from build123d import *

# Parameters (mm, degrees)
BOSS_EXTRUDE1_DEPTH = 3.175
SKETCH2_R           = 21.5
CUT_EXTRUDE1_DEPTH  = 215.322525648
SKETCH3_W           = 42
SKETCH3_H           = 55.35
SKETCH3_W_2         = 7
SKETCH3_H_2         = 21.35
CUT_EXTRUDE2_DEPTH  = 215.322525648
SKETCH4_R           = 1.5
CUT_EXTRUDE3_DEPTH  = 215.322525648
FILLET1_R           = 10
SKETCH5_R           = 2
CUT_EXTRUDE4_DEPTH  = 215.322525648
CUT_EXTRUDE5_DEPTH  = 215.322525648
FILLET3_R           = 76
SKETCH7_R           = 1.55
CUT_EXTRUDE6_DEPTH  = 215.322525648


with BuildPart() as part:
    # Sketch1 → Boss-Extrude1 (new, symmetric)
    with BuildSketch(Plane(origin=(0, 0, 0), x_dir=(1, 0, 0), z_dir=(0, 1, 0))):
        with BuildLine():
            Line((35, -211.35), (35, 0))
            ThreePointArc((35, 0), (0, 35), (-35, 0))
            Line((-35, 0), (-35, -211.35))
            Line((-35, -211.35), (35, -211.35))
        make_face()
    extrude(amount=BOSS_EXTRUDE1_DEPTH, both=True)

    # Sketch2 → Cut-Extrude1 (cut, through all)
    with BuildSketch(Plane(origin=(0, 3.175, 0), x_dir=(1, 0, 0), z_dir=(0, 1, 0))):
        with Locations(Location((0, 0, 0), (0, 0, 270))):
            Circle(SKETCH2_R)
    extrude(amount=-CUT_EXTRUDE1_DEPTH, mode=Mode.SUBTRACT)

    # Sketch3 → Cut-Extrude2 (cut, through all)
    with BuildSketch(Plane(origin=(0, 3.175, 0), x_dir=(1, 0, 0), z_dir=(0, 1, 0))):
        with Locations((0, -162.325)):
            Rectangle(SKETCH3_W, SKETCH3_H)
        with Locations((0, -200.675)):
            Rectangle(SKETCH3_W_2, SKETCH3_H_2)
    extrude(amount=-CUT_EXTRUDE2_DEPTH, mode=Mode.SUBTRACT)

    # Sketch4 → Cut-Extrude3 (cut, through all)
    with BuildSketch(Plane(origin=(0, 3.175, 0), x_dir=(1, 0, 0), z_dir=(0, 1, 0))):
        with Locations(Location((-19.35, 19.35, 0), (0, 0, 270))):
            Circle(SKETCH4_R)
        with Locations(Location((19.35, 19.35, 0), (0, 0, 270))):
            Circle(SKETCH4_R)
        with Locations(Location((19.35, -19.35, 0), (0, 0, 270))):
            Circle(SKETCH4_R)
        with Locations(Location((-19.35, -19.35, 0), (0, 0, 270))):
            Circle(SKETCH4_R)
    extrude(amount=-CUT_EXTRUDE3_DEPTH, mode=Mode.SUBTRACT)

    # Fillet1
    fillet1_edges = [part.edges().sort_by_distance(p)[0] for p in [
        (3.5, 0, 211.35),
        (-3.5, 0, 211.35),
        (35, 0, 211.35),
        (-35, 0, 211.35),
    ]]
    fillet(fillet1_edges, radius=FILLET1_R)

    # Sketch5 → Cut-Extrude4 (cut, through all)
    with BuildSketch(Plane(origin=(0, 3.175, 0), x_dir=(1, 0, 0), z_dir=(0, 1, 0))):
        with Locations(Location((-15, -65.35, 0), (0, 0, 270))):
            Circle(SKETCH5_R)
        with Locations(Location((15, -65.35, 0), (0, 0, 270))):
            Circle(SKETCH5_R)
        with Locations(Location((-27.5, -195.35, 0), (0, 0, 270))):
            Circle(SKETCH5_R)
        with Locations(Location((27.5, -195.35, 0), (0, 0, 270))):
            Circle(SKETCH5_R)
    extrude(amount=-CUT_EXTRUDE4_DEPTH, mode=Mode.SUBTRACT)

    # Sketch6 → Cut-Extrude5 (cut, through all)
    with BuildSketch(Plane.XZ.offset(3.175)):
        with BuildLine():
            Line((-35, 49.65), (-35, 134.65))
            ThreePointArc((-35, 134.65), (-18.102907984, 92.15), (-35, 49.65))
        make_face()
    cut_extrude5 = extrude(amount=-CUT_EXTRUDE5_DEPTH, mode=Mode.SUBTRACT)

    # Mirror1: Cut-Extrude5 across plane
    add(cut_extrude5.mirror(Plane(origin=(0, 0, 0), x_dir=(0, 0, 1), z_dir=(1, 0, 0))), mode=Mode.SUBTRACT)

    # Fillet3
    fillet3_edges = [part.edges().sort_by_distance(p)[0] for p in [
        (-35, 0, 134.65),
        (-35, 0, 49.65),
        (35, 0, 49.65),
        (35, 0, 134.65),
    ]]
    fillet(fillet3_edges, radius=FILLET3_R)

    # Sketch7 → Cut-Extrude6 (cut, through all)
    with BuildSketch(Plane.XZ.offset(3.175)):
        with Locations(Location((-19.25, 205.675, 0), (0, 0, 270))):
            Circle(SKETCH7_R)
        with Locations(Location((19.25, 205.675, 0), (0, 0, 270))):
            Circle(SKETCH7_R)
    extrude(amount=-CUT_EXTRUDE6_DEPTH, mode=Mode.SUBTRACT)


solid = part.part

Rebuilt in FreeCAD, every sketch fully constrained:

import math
import FreeCAD as App
import Part
import Sketcher


def edges_at(feature, points):
    """Names of the edges that pass closest to the given points."""
    edges = feature.Shape.Edges
    near = lambda p: min(range(len(edges)), key=lambda i: edges[i].distToShape(Part.Vertex(*p))[0])
    return sorted({f"Edge{near(p) + 1}" for p in points})

doc = App.newDocument("Part")
body = doc.addObject("PartDesign::Body", "Body")

# Sketch on XZ plane
sketch1 = body.newObject("Sketcher::SketchObject", "Sketch")
sketch1.AttachmentSupport = (doc.getObject("XZ_Plane"), [""])
sketch1.MapMode = "FlatFace"
sketch1.addGeometry(Part.LineSegment(App.Vector(35, 211, 0), App.Vector(35, 0, 0)), False)
sketch1.addGeometry(Part.ArcOfCircle(Part.Circle(App.Vector(0, 0, 0), App.Vector(0, 0, 1), 35), math.radians(180), math.radians(360)), False)
sketch1.addGeometry(Part.LineSegment(App.Vector(-35, 0, 0), App.Vector(-35, 211, 0)), False)
sketch1.addGeometry(Part.LineSegment(App.Vector(-35, 211, 0), App.Vector(35, 211, 0)), False)
sketch1.addConstraint(Sketcher.Constraint("Tangent", 0, 2, 1, 2))
sketch1.addConstraint(Sketcher.Constraint("Tangent", 1, 1, 2, 1))
sketch1.addConstraint(Sketcher.Constraint("Coincident", 2, 2, 3, 1))
sketch1.addConstraint(Sketcher.Constraint("Coincident", 3, 2, 0, 1))
sketch1.addConstraint(Sketcher.Constraint("Vertical", 0))
sketch1.addConstraint(Sketcher.Constraint("Vertical", 2))
sketch1.addConstraint(Sketcher.Constraint("Horizontal", 3))
sketch1.addConstraint(Sketcher.Constraint("Coincident", 1, 3, -1, 1))
sketch1.addConstraint(Sketcher.Constraint("Radius", 1, 35.0))
sketch1.addConstraint(Sketcher.Constraint("DistanceY", 0, 2, 0, 1, 211.35))
pad1 = body.newObject("PartDesign::Pad", "Pad")
pad1.Profile = sketch1
pad1.Length = 6.35
pad1.Midplane = True

# Sketch on XZ plane
sketch2 = body.newObject("Sketcher::SketchObject", "Sketch001")
sketch2.AttachmentSupport = (doc.getObject("XZ_Plane"), [""])
sketch2.MapMode = "FlatFace"
sketch2.AttachmentOffset = App.Placement(App.Vector(0, 0, -3.175), App.Rotation())
sketch2.addGeometry(Part.Circle(App.Vector(0, 0, 0), App.Vector(0, 0, 1), 22), False)
sketch2.addConstraint(Sketcher.Constraint("Coincident", 0, 3, -1, 1))
sketch2.addConstraint(Sketcher.Constraint("Diameter", 0, 43.0))
pocket1 = body.newObject("PartDesign::Pocket", "Pocket")
pocket1.Profile = sketch2
pocket1.Type = "ThroughAll"
pocket1.Reversed = True

# Sketch on XZ plane
sketch3 = body.newObject("Sketcher::SketchObject", "Sketch002")
sketch3.AttachmentSupport = (doc.getObject("XZ_Plane"), [""])
sketch3.MapMode = "FlatFace"
sketch3.AttachmentOffset = App.Placement(App.Vector(0, 0, -3.175), App.Rotation())
sketch3.addGeometry(Part.LineSegment(App.Vector(-21, 135, 0), App.Vector(-21, 190, 0)), False)
sketch3.addGeometry(Part.LineSegment(App.Vector(-21, 190, 0), App.Vector(-4, 190, 0)), False)
sketch3.addGeometry(Part.LineSegment(App.Vector(-4, 190, 0), App.Vector(-4, 211, 0)), False)
sketch3.addGeometry(Part.LineSegment(App.Vector(-4, 211, 0), App.Vector(4, 211, 0)), False)
sketch3.addGeometry(Part.LineSegment(App.Vector(4, 211, 0), App.Vector(4, 190, 0)), False)
sketch3.addGeometry(Part.LineSegment(App.Vector(4, 190, 0), App.Vector(21, 190, 0)), False)
sketch3.addGeometry(Part.LineSegment(App.Vector(21, 190, 0), App.Vector(21, 135, 0)), False)
sketch3.addGeometry(Part.LineSegment(App.Vector(21, 135, 0), App.Vector(-21, 135, 0)), False)
sketch3.addConstraint(Sketcher.Constraint("Coincident", 0, 2, 1, 1))
sketch3.addConstraint(Sketcher.Constraint("Coincident", 1, 2, 2, 1))
sketch3.addConstraint(Sketcher.Constraint("Coincident", 2, 2, 3, 1))
sketch3.addConstraint(Sketcher.Constraint("Coincident", 3, 2, 4, 1))
sketch3.addConstraint(Sketcher.Constraint("Coincident", 4, 2, 5, 1))
sketch3.addConstraint(Sketcher.Constraint("Coincident", 5, 2, 6, 1))
sketch3.addConstraint(Sketcher.Constraint("Coincident", 6, 2, 7, 1))
sketch3.addConstraint(Sketcher.Constraint("Coincident", 7, 2, 0, 1))
sketch3.addConstraint(Sketcher.Constraint("Vertical", 0))
sketch3.addConstraint(Sketcher.Constraint("Horizontal", 1))
sketch3.addConstraint(Sketcher.Constraint("Vertical", 2))
sketch3.addConstraint(Sketcher.Constraint("Horizontal", 3))
sketch3.addConstraint(Sketcher.Constraint("Vertical", 4))
sketch3.addConstraint(Sketcher.Constraint("Horizontal", 5))
sketch3.addConstraint(Sketcher.Constraint("Vertical", 6))
sketch3.addConstraint(Sketcher.Constraint("Horizontal", 7))
sketch3.addConstraint(Sketcher.Constraint("Symmetric", 1, 2, 4, 2, -2))
sketch3.addConstraint(Sketcher.Constraint("Equal", 1, 5))
sketch3.addConstraint(Sketcher.Constraint("DistanceX", 3, 1, 3, 2, 7.0))
sketch3.addConstraint(Sketcher.Constraint("DistanceX", 7, 2, 7, 1, 42.0))
sketch3.addConstraint(Sketcher.Constraint("DistanceY", -1, 1, 0, 2, 190.0))
sketch3.addConstraint(Sketcher.Constraint("DistanceY", 0, 1, 0, 2, 55.35))
sketch3.addConstraint(Sketcher.Constraint("DistanceY", 2, 1, 2, 2, 21.35))
pocket2 = body.newObject("PartDesign::Pocket", "Pocket001")
pocket2.Profile = sketch3
pocket2.Type = "ThroughAll"
pocket2.Reversed = True

# Sketch on XZ plane
sketch4 = body.newObject("Sketcher::SketchObject", "Sketch003")
sketch4.AttachmentSupport = (doc.getObject("XZ_Plane"), [""])
sketch4.MapMode = "FlatFace"
sketch4.AttachmentOffset = App.Placement(App.Vector(0, 0, -3.175), App.Rotation())
sketch4.addGeometry(Part.Circle(App.Vector(-19.4, -19.4, 0), App.Vector(0, 0, 1), 1.5), False)
sketch4.addGeometry(Part.Circle(App.Vector(19.4, -19.4, 0), App.Vector(0, 0, 1), 1.5), False)
sketch4.addGeometry(Part.Circle(App.Vector(19.4, 19.4, 0), App.Vector(0, 0, 1), 1.5), False)
sketch4.addGeometry(Part.Circle(App.Vector(-19.4, 19.4, 0), App.Vector(0, 0, 1), 1.5), False)
sketch4.addConstraint(Sketcher.Constraint("Equal", 0, 1))
sketch4.addConstraint(Sketcher.Constraint("Equal", 1, 2))
sketch4.addConstraint(Sketcher.Constraint("Equal", 2, 3))
sketch4.addConstraint(Sketcher.Constraint("Symmetric", 0, 3, 2, 3, -1, 1))
sketch4.addConstraint(Sketcher.Constraint("Symmetric", 1, 3, 3, 3, -1, 1))
sketch4.addConstraint(Sketcher.Constraint("Symmetric", 0, 3, 1, 3, -2))
sketch4.addConstraint(Sketcher.Constraint("Diameter", 0, 3.0))
sketch4.addConstraint(Sketcher.Constraint("DistanceX", 0, 3, 1, 3, 38.7))
sketch4.addConstraint(Sketcher.Constraint("DistanceY", 1, 3, 2, 3, 38.7))
pocket3 = body.newObject("PartDesign::Pocket", "Pocket002")
pocket3.Profile = sketch4
pocket3.Type = "ThroughAll"
pocket3.Reversed = True
doc.recompute()

fillet = body.newObject("PartDesign::Fillet", "Fillet")
fillet.Base = (pocket3, edges_at(pocket3, [
    (3.5, 0, 211.35),
    (-3.5, 0, 211.35),
    (35, 0, 211.35),
    (-35, 0, 211.35),
]))
fillet.Radius = 10

# Sketch on XZ plane
sketch5 = body.newObject("Sketcher::SketchObject", "Sketch004")
sketch5.AttachmentSupport = (doc.getObject("XZ_Plane"), [""])
sketch5.MapMode = "FlatFace"
sketch5.AttachmentOffset = App.Placement(App.Vector(0, 0, -3.175), App.Rotation())
sketch5.addGeometry(Part.Circle(App.Vector(-15, 65.3, 0), App.Vector(0, 0, 1), 2), False)
sketch5.addGeometry(Part.Circle(App.Vector(15, 65.3, 0), App.Vector(0, 0, 1), 2), False)
sketch5.addGeometry(Part.Circle(App.Vector(-27.5, 195.3, 0), App.Vector(0, 0, 1), 2), False)
sketch5.addGeometry(Part.Circle(App.Vector(27.5, 195.3, 0), App.Vector(0, 0, 1), 2), False)
sketch5.addConstraint(Sketcher.Constraint("Equal", 0, 1))
sketch5.addConstraint(Sketcher.Constraint("Equal", 1, 2))
sketch5.addConstraint(Sketcher.Constraint("Equal", 2, 3))
sketch5.addConstraint(Sketcher.Constraint("Symmetric", 0, 3, 1, 3, -2))
sketch5.addConstraint(Sketcher.Constraint("Symmetric", 2, 3, 3, 3, -2))
sketch5.addConstraint(Sketcher.Constraint("Diameter", 0, 4.0))
sketch5.addConstraint(Sketcher.Constraint("DistanceX", 0, 3, -1, 1, 15.0))
sketch5.addConstraint(Sketcher.Constraint("DistanceY", 0, 3, 2, 3, 130.0))
sketch5.addConstraint(Sketcher.Constraint("DistanceX", 2, 3, 3, 3, 55.0))
sketch5.addConstraint(Sketcher.Constraint("DistanceY", -1, 1, 0, 3, 65.35))
pocket4 = body.newObject("PartDesign::Pocket", "Pocket003")
pocket4.Profile = sketch5
pocket4.Type = "ThroughAll"
pocket4.Reversed = True

# Sketch on XZ plane
sketch6 = body.newObject("Sketcher::SketchObject", "Sketch005")
sketch6.AttachmentSupport = (doc.getObject("XZ_Plane"), [""])
sketch6.MapMode = "FlatFace"
sketch6.AttachmentOffset = App.Placement(App.Vector(0, 0, 3.175), App.Rotation())
sketch6.addGeometry(Part.LineSegment(App.Vector(-35, 135, 0), App.Vector(-35, 50, 0)), False)
sketch6.addGeometry(Part.ArcOfCircle(Part.Circle(App.Vector(-80, 92, 0), App.Vector(0, 0, 1), 62), math.radians(-43), math.radians(43)), False)
sketch6.addConstraint(Sketcher.Constraint("Coincident", 0, 1, 1, 2))
sketch6.addConstraint(Sketcher.Constraint("Coincident", 1, 1, 0, 2))
sketch6.addConstraint(Sketcher.Constraint("Vertical", 0))
sketch6.addConstraint(Sketcher.Constraint("DistanceY", 0, 2, 0, 1, 85.0))
sketch6.addConstraint(Sketcher.Constraint("DistanceX", 1, 3, -1, 1, 80.0))
sketch6.addConstraint(Sketcher.Constraint("DistanceX", 0, 1, -1, 1, 35.0))
sketch6.addConstraint(Sketcher.Constraint("DistanceY", -1, 1, 1, 3, 92.15))
pocket5 = body.newObject("PartDesign::Pocket", "Pocket004")
pocket5.Profile = sketch6
pocket5.Type = "ThroughAll"
doc.recompute()

mirrored = body.newObject("PartDesign::Mirrored", "Mirrored")
mirrored.Originals = [pocket5]
mirrored.MirrorPlane = (doc.getObject("YZ_Plane"), [""])
body.Tip = mirrored
doc.recompute()

fillet2 = body.newObject("PartDesign::Fillet", "Fillet001")
fillet2.Base = (mirrored, edges_at(mirrored, [
    (-35, 0, 134.65),
    (-35, 0, 49.65),
    (35, 0, 49.65),
    (35, 0, 134.65),
]))
fillet2.Radius = 76

# Sketch on XZ plane
sketch7 = body.newObject("Sketcher::SketchObject", "Sketch006")
sketch7.AttachmentSupport = (doc.getObject("XZ_Plane"), [""])
sketch7.MapMode = "FlatFace"
sketch7.AttachmentOffset = App.Placement(App.Vector(0, 0, 3.175), App.Rotation())
sketch7.addGeometry(Part.Circle(App.Vector(-19.2, 205.7, 0), App.Vector(0, 0, 1), 1.6), False)
sketch7.addGeometry(Part.Circle(App.Vector(19.2, 205.7, 0), App.Vector(0, 0, 1), 1.6), False)
sketch7.addConstraint(Sketcher.Constraint("Equal", 0, 1))
sketch7.addConstraint(Sketcher.Constraint("Symmetric", 0, 3, 1, 3, -2))
sketch7.addConstraint(Sketcher.Constraint("Diameter", 0, 3.1))
sketch7.addConstraint(Sketcher.Constraint("DistanceX", 0, 3, 1, 3, 38.5))
sketch7.addConstraint(Sketcher.Constraint("DistanceY", -1, 1, 0, 3, 205.675))
pocket6 = body.newObject("PartDesign::Pocket", "Pocket005")
pocket6.Profile = sketch7
pocket6.Type = "ThroughAll"

doc.recompute()
